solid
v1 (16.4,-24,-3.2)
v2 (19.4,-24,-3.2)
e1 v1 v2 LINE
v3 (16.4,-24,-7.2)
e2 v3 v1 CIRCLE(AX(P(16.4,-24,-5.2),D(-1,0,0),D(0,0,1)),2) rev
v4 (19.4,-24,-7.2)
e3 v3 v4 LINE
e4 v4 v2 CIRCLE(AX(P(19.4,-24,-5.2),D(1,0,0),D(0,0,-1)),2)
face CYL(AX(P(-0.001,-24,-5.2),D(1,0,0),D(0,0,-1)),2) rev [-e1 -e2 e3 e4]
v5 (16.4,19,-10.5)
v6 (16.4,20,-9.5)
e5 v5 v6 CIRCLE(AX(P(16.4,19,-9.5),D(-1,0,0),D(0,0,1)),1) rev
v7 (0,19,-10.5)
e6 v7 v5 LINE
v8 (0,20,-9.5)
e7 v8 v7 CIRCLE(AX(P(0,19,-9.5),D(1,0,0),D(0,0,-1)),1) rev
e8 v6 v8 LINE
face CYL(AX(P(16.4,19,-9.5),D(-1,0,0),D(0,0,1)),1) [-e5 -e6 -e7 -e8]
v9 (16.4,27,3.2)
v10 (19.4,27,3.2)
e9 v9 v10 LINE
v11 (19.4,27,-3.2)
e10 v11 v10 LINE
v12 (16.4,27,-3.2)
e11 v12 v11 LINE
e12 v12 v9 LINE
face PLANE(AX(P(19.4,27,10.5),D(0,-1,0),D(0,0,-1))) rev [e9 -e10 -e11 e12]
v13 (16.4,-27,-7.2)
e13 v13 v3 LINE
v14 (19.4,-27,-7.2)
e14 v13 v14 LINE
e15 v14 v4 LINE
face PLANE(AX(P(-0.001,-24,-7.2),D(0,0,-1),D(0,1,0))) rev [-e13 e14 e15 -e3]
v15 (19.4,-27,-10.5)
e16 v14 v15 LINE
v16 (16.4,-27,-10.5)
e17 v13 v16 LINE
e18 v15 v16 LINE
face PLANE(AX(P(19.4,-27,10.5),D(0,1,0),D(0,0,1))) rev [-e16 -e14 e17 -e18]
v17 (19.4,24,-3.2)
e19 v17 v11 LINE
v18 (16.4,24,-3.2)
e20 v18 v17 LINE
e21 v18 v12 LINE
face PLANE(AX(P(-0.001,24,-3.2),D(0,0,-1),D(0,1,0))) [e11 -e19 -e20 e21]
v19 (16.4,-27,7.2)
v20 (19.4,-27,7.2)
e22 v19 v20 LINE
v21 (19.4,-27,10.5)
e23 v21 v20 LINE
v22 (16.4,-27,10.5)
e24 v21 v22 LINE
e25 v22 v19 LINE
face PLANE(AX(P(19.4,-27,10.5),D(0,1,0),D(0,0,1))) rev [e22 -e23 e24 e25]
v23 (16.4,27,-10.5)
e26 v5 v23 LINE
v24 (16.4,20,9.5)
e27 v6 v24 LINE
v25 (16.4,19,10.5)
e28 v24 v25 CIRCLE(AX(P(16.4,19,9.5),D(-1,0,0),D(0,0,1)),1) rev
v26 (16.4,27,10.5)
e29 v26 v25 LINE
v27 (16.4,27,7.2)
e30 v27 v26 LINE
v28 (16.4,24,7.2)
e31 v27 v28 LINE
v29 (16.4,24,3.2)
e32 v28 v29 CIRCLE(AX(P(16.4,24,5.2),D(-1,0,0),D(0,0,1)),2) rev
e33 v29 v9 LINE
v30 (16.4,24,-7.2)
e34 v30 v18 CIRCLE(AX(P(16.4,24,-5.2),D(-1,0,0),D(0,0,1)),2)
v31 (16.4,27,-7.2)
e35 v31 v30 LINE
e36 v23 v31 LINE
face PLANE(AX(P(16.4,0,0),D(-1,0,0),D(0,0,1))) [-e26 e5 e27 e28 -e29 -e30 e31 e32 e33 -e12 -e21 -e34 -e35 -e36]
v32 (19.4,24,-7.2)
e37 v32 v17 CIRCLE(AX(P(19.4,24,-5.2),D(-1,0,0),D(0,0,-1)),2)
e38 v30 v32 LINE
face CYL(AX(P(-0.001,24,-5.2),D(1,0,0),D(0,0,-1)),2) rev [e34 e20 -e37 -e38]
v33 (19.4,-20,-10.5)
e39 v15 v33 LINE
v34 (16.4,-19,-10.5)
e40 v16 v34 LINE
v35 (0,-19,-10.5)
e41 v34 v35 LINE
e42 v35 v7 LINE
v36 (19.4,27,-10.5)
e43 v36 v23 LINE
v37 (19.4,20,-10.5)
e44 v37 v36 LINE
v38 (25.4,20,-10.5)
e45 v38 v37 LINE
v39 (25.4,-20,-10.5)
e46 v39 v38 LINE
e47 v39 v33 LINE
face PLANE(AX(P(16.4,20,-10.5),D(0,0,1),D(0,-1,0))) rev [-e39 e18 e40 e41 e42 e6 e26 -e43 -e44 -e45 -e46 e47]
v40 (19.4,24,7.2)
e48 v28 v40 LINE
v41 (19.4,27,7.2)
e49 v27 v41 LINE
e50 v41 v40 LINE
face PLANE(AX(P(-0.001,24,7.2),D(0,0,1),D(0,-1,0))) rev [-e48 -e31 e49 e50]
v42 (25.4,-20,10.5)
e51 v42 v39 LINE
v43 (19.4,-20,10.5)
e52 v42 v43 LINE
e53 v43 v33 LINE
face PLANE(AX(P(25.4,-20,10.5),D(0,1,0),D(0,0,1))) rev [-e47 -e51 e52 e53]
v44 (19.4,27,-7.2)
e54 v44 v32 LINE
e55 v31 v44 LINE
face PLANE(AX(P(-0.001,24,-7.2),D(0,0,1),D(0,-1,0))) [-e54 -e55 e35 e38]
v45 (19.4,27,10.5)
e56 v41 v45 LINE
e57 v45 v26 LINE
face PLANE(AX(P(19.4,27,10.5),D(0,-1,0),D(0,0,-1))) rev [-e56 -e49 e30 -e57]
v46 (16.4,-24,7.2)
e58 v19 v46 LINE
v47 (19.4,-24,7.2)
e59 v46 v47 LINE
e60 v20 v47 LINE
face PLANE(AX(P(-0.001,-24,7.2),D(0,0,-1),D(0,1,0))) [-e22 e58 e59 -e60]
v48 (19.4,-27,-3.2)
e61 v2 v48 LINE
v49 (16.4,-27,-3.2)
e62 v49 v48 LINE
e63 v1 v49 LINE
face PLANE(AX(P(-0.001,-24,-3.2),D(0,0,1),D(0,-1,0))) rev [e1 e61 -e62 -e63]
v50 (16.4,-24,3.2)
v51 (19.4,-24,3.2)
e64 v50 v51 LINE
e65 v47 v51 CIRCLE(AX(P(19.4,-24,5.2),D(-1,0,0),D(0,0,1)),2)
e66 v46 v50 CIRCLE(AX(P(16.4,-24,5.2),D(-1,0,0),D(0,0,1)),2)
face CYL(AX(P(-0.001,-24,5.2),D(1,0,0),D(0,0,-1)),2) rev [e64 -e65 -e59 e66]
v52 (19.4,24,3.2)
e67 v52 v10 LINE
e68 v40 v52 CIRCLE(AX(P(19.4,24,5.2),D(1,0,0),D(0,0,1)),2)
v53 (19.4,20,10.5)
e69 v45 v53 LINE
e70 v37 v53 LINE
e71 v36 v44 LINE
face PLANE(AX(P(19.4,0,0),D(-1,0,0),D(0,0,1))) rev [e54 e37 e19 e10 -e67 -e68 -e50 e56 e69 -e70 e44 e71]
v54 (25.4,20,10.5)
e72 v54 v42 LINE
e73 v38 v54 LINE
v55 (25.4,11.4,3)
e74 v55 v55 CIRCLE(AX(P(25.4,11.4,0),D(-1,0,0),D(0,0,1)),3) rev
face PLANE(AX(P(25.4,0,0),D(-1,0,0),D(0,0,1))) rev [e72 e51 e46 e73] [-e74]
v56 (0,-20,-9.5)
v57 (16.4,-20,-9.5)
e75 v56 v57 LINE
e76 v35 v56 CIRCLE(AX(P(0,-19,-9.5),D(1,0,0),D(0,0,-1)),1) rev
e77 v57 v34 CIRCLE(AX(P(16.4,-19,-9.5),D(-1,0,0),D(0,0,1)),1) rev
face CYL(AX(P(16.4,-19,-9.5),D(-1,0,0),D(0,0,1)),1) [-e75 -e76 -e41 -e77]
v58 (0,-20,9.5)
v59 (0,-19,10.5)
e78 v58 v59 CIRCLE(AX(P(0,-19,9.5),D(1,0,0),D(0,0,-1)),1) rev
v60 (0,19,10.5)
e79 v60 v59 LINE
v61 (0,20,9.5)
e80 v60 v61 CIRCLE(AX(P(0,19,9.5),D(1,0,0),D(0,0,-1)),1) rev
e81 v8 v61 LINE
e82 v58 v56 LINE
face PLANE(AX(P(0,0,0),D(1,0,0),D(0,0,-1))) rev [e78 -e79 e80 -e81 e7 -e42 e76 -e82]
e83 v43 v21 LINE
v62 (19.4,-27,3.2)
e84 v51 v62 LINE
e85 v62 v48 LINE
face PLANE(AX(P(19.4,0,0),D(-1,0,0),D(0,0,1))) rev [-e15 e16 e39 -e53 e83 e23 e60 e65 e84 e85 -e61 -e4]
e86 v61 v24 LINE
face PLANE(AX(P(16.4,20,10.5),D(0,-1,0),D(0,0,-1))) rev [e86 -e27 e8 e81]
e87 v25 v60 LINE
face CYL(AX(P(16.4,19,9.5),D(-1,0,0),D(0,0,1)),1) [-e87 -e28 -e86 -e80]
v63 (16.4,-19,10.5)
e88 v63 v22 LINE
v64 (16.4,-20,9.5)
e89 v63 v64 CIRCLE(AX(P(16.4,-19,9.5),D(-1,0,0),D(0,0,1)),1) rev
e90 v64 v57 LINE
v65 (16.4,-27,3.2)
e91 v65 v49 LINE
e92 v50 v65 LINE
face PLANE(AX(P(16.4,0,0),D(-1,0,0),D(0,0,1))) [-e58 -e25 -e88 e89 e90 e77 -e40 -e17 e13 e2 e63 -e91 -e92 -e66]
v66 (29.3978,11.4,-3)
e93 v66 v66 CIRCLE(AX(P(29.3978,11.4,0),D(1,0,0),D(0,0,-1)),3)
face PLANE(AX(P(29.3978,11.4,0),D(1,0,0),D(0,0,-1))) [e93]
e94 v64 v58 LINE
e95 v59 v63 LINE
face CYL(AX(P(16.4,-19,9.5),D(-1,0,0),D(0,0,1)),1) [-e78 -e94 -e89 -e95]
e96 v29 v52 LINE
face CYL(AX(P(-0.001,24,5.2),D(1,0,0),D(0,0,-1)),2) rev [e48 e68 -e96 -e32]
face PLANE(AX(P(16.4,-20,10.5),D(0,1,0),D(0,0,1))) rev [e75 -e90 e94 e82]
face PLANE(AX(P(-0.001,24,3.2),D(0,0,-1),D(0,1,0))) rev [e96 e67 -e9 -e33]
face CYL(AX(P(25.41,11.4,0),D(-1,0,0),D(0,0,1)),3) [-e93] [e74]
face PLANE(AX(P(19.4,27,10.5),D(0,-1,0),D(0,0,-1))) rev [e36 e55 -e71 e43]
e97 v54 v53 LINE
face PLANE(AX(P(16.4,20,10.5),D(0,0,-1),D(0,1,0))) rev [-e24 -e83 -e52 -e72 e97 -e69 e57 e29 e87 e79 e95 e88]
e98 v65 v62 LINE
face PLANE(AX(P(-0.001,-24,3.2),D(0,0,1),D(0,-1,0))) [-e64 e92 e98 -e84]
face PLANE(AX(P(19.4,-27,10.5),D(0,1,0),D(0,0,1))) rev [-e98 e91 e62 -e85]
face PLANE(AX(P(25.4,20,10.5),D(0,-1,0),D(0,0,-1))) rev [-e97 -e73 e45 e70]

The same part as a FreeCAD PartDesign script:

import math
import FreeCAD as App
import Part
import Sketcher

V = App.Vector


def edges_at(feature, points):
    """Names of the edges that pass closest to the given points."""
    edges = feature.Shape.Edges
    near = lambda p: min(range(len(edges)), key=lambda i: edges[i].distToShape(Part.Vertex(*p))[0])
    return sorted({f"Edge{near(p) + 1}" for p in points})

doc = App.newDocument("Part")
body = doc.addObject("PartDesign::Body", "Body")

# Sketch on YZ plane
sketch1 = body.newObject("Sketcher::SketchObject", "Sketch")
sketch1.AttachmentSupport = (doc.getObject("YZ_Plane"), [""])
sketch1.MapMode = "FlatFace"
sketch1.addGeometry(Part.LineSegment(V(20, 10, 0), V(-20, 10, 0)), False)
sketch1.addGeometry(Part.LineSegment(V(-20, 10, 0), V(-20, -10, 0)), False)
sketch1.addGeometry(Part.LineSegment(V(-20, -10, 0), V(20, -10, 0)), False)
sketch1.addGeometry(Part.LineSegment(V(20, -10, 0), V(20, 10, 0)), False)
sketch1.addConstraint(Sketcher.Constraint("Coincident", 0, 2, 1, 1))
sketch1.addConstraint(Sketcher.Constraint("Coincident", 1, 2, 2, 1))
sketch1.addConstraint(Sketcher.Constraint("Coincident", 2, 2, 3, 1))
sketch1.addConstraint(Sketcher.Constraint("Coincident", 3, 2, 0, 1))
sketch1.addConstraint(Sketcher.Constraint("Horizontal", 0))
sketch1.addConstraint(Sketcher.Constraint("Vertical", 1))
sketch1.addConstraint(Sketcher.Constraint("Horizontal", 2))
sketch1.addConstraint(Sketcher.Constraint("Vertical", 3))
sketch1.addConstraint(Sketcher.Constraint("Symmetric", 0, 2, 2, 2, -1, 1))
sketch1.addConstraint(Sketcher.Constraint("DistanceX", 0, 2, 0, 1, 40.0))
sketch1.addConstraint(Sketcher.Constraint("DistanceY", 1, 2, 1, 1, 21.0))
pad1 = body.newObject("PartDesign::Pad", "Pad")
pad1.Profile = sketch1
pad1.Length = 16.4

# Sketch on YZ plane
sketch2 = body.newObject("Sketcher::SketchObject", "Sketch001")
sketch2.AttachmentSupport = (doc.getObject("YZ_Plane"), [""])
sketch2.MapMode = "FlatFace"
sketch2.AttachmentOffset = App.Placement(V(0, 0, 16.4), App.Rotation())
sketch2.addGeometry(Part.LineSegment(V(27, 10, 0), V(-27, 10, 0)), False)
sketch2.addGeometry(Part.LineSegment(V(-27, 10, 0), V(-27, -10, 0)), False)
sketch2.addGeometry(Part.LineSegment(V(-27, -10, 0), V(27, -10, 0)), False)
sketch2.addGeometry(Part.LineSegment(V(27, -10, 0), V(27, 10, 0)), False)
sketch2.addConstraint(Sketcher.Constraint("Coincident", 0, 2, 1, 1))
sketch2.addConstraint(Sketcher.Constraint("Coincident", 1, 2, 2, 1))
sketch2.addConstraint(Sketcher.Constraint("Coincident", 2, 2, 3, 1))
sketch2.addConstraint(Sketcher.Constraint("Coincident", 3, 2, 0, 1))
sketch2.addConstraint(Sketcher.Constraint("Horizontal", 0))
sketch2.addConstraint(Sketcher.Constraint("Vertical", 1))
sketch2.addConstraint(Sketcher.Constraint("Horizontal", 2))
sketch2.addConstraint(Sketcher.Constraint("Vertical", 3))
sketch2.addConstraint(Sketcher.Constraint("Symmetric", 0, 2, 2, 2, -1, 1))
sketch2.addConstraint(Sketcher.Constraint("DistanceX", 0, 2, 0, 1, 54.0))
sketch2.addConstraint(Sketcher.Constraint("DistanceY", 1, 2, 1, 1, 21.0))
pad2 = body.newObject("PartDesign::Pad", "Pad001")
pad2.Profile = sketch2
pad2.Length = 3

# Sketch on YZ plane
sketch3 = body.newObject("Sketcher::SketchObject", "Sketch002")
sketch3.AttachmentSupport = (doc.getObject("YZ_Plane"), [""])
sketch3.MapMode = "FlatFace"
sketch3.AttachmentOffset = App.Placement(V(0, 0, 19.4), App.Rotation())
sketch3.addGeometry(Part.LineSegment(V(24, 3.2, 0), V(27, 3.2, 0)), False)
sketch3.addGeometry(Part.LineSegment(V(27, 3.2, 0), V(27, 7.2, 0)), False)
sketch3.addGeometry(Part.LineSegment(V(27, 7.2, 0), V(24, 7.2, 0)), False)
sketch3.addGeometry(Part.ArcOfCircle(Part.Circle(V(24, 5.2, 0), V(0, 0, 1), 2), math.radians(90), math.radians(270)), False)
sketch3.addConstraint(Sketcher.Constraint("Coincident", 0, 2, 1, 1))
sketch3.addConstraint(Sketcher.Constraint("Coincident", 1, 2, 2, 1))
sketch3.addConstraint(Sketcher.Constraint("Tangent", 2, 2, 3, 1))
sketch3.addConstraint(Sketcher.Constraint("Tangent", 3, 2, 0, 1))
sketch3.addConstraint(Sketcher.Constraint("Horizontal", 0))
sketch3.addConstraint(Sketcher.Constraint("Vertical", 1))
sketch3.addConstraint(Sketcher.Constraint("Horizontal", 2))
sketch3.addConstraint(Sketcher.Constraint("Radius", 3, 2.0))
sketch3.addConstraint(Sketcher.Constraint("DistanceX", 0, 1, 0, 2, 3.0))
sketch3.addConstraint(Sketcher.Constraint("DistanceX", -1, 1, 3, 3, 24.0))
sketch3.addConstraint(Sketcher.Constraint("DistanceY", -1, 1, 3, 3, 5.2))
pocket1 = body.newObject("PartDesign::Pocket", "Pocket")
pocket1.Profile = sketch3
pocket1.Length = 3
doc.recompute()

mirrored = body.newObject("PartDesign::Mirrored", "Mirrored")
mirrored.Originals = [pocket1]
mirrored.MirrorPlane = (doc.getObject("XY_Plane"), [""])
body.Tip = mirrored
doc.recompute()

mirrored2 = body.newObject("PartDesign::Mirrored", "Mirrored001")
mirrored2.Originals = [pocket1]
mirrored2.MirrorPlane = (doc.getObject("XZ_Plane"), [""])
body.Tip = mirrored2

# Sketch on YZ plane
sketch4 = body.newObject("Sketcher::SketchObject", "Sketch003")
sketch4.AttachmentSupport = (doc.getObject("YZ_Plane"), [""])
sketch4.MapMode = "FlatFace"
sketch4.AttachmentOffset = App.Placement(V(0, 0, 19.4), App.Rotation())
sketch4.addGeometry(Part.LineSegment(V(-24, -3.2, 0), V(-27, -3.2, 0)), False)
sketch4.addGeometry(Part.LineSegment(V(-27, -3.2, 0), V(-27, -7.2, 0)), False)
sketch4.addGeometry(Part.LineSegment(V(-27, -7.2, 0), V(-24, -7.2, 0)), False)
sketch4.addGeometry(Part.ArcOfCircle(Part.Circle(V(-24, -5.2, 0), V(0, 0, 1), 2), math.radians(-90), math.radians(90)), False)
sketch4.addConstraint(Sketcher.Constraint("Coincident", 0, 2, 1, 1))
sketch4.addConstraint(Sketcher.Constraint("Coincident", 1, 2, 2, 1))
sketch4.addConstraint(Sketcher.Constraint("Tangent", 2, 2, 3, 1))
sketch4.addConstraint(Sketcher.Constraint("Tangent", 3, 2, 0, 1))
sketch4.addConstraint(Sketcher.Constraint("Horizontal", 0))
sketch4.addConstraint(Sketcher.Constraint("Vertical", 1))
sketch4.addConstraint(Sketcher.Constraint("Horizontal", 2))
sketch4.addConstraint(Sketcher.Constraint("Radius", 3, 2.0))
sketch4.addConstraint(Sketcher.Constraint("DistanceX", 0, 2, 0, 1, 3.0))
sketch4.addConstraint(Sketcher.Constraint("DistanceX", 3, 3, -1, 1, 24.0))
sketch4.addConstraint(Sketcher.Constraint("DistanceY", 3, 3, -1, 1, 5.2))
pocket2 = body.newObject("PartDesign::Pocket", "Pocket001")
pocket2.Profile = sketch4
pocket2.Length = 3

# Sketch on YZ plane
sketch5 = body.newObject("Sketcher::SketchObject", "Sketch004")
sketch5.AttachmentSupport = (doc.getObject("YZ_Plane"), [""])
sketch5.MapMode = "FlatFace"
sketch5.AttachmentOffset = App.Placement(V(0, 0, 19.4), App.Rotation())
sketch5.addGeometry(Part.LineSegment(V(20, 10, 0), V(-20, 10, 0)), False)
sketch5.addGeometry(Part.LineSegment(V(-20, 10, 0), V(-20, -10, 0)), False)
sketch5.addGeometry(Part.LineSegment(V(-20, -10, 0), V(20, -10, 0)), False)
sketch5.addGeometry(Part.LineSegment(V(20, -10, 0), V(20, 10, 0)), False)
sketch5.addConstraint(Sketcher.Constraint("Coincident", 0, 2, 1, 1))
sketch5.addConstraint(Sketcher.Constraint("Coincident", 1, 2, 2, 1))
sketch5.addConstraint(Sketcher.Constraint("Coincident", 2, 2, 3, 1))
sketch5.addConstraint(Sketcher.Constraint("Coincident", 3, 2, 0, 1))
sketch5.addConstraint(Sketcher.Constraint("Horizontal", 0))
sketch5.addConstraint(Sketcher.Constraint("Vertical", 1))
sketch5.addConstraint(Sketcher.Constraint("Horizontal", 2))
sketch5.addConstraint(Sketcher.Constraint("Vertical", 3))
sketch5.addConstraint(Sketcher.Constraint("Symmetric", 0, 2, 2, 2, -1, 1))
sketch5.addConstraint(Sketcher.Constraint("DistanceX", 0, 2, 0, 1, 40.0))
sketch5.addConstraint(Sketcher.Constraint("DistanceY", 1, 2, 1, 1, 21.0))
pad3 = body.newObject("PartDesign::Pad", "Pad002")
pad3.Profile = sketch5
pad3.Length = 6

# Sketch on YZ plane
sketch6 = body.newObject("Sketcher::SketchObject", "Sketch005")
sketch6.AttachmentSupport = (doc.getObject("YZ_Plane"), [""])
sketch6.MapMode = "FlatFace"
sketch6.AttachmentOffset = App.Placement(V(0, 0, 25.4), App.Rotation())
sketch6.addGeometry(Part.Circle(V(11.4, 0, 0), V(0, 0, 1), 3), False)
sketch6.addConstraint(Sketcher.Constraint("PointOnObject", 0, 3, -1))
sketch6.addConstraint(Sketcher.Constraint("Diameter", 0, 6.0))
sketch6.addConstraint(Sketcher.Constraint("DistanceX", -1, 1, 0, 3, 11.4))
pad4 = body.newObject("PartDesign::Pad", "Pad003")
pad4.Profile = sketch6
pad4.Length = 0.01
doc.recompute()

fillet = body.newObject("PartDesign::Fillet", "Fillet")
fillet.Base = (pad4, edges_at(pad4, [
    (8.2, -20, -10.5),
    (8.2, -20, 10.5),
    (8.2, 20, 10.5),
    (8.2, 20, -10.5),
]))
fillet.Radius = 1

# Sketch on YZ plane
sketch7 = body.newObject("Sketcher::SketchObject", "Sketch006")
sketch7.AttachmentSupport = (doc.getObject("YZ_Plane"), [""])
sketch7.MapMode = "FlatFace"
sketch7.AttachmentOffset = App.Placement(V(0, 0, 25.41), App.Rotation())
sketch7.addGeometry(Part.Circle(V(11.4, 0, 0), V(0, 0, 1), 3), False)
sketch7.addConstraint(Sketcher.Constraint("PointOnObject", 0, 3, -1))
sketch7.addConstraint(Sketcher.Constraint("Diameter", 0, 6.0))
sketch7.addConstraint(Sketcher.Constraint("DistanceX", -1, 1, 0, 3, 11.4))
pad5 = body.newObject("PartDesign::Pad", "Pad004")
pad5.Profile = sketch7
pad5.Length = 3.9878

doc.recompute()
